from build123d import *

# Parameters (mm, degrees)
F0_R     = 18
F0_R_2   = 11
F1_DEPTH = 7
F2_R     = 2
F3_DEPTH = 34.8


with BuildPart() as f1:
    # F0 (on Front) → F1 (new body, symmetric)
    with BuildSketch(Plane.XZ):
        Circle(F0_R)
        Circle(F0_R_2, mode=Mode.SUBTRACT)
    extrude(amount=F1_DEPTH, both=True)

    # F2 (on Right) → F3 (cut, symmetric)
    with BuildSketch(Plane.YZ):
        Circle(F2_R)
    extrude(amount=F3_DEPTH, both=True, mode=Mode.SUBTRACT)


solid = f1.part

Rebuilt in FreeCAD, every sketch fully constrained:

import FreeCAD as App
import Part
import Sketcher
Q = App.Units.Quantity

doc = App.newDocument("Part")
body = doc.addObject("PartDesign::Body", "Body")

# Sketch on XZ plane
sketch1 = body.newObject("Sketcher::SketchObject", "Sketch")
sketch1.AttachmentSupport = (doc.getObject("XZ_Plane"), [""])
sketch1.MapMode = "FlatFace"
sketch1.addGeometry(Part.Circle(App.Vector(0, 0, 0), App.Vector(0, 0, 1), 18), False)
sketch1.addGeometry(Part.Circle(App.Vector(0, 0, 0), App.Vector(0, 0, 1), 11), False)
sketch1.addConstraint(Sketcher.Constraint("Coincident", 0, 3, -1, 1))
sketch1.addConstraint(Sketcher.Constraint("Coincident", 1, 3, -1, 1))
sketch1.addConstraint(Sketcher.Constraint("Diameter", 0, Q("36 mm")))
sketch1.addConstraint(Sketcher.Constraint("Diameter", 1, Q("22 mm")))
pad1 = body.newObject("PartDesign::Pad", "Pad")
pad1.Profile = sketch1
pad1.Length = 14
pad1.Midplane = True

# Sketch on YZ plane
sketch2 = body.newObject("Sketcher::SketchObject", "Sketch001")
sketch2.AttachmentSupport = (doc.getObject("YZ_Plane"), [""])
sketch2.MapMode = "FlatFace"
sketch2.addGeometry(Part.Circle(App.Vector(0, 0, 0), App.Vector(0, 0, 1), 2), False)
sketch2.addConstraint(Sketcher.Constraint("Coincident", 0, 3, -1, 1))
sketch2.addConstraint(Sketcher.Constraint("Diameter", 0, Q("4 mm")))
pocket1 = body.newObject("PartDesign::Pocket", "Pocket")
pocket1.Profile = sketch2
pocket1.Length = 69.6
pocket1.Midplane = True

doc.recompute()
